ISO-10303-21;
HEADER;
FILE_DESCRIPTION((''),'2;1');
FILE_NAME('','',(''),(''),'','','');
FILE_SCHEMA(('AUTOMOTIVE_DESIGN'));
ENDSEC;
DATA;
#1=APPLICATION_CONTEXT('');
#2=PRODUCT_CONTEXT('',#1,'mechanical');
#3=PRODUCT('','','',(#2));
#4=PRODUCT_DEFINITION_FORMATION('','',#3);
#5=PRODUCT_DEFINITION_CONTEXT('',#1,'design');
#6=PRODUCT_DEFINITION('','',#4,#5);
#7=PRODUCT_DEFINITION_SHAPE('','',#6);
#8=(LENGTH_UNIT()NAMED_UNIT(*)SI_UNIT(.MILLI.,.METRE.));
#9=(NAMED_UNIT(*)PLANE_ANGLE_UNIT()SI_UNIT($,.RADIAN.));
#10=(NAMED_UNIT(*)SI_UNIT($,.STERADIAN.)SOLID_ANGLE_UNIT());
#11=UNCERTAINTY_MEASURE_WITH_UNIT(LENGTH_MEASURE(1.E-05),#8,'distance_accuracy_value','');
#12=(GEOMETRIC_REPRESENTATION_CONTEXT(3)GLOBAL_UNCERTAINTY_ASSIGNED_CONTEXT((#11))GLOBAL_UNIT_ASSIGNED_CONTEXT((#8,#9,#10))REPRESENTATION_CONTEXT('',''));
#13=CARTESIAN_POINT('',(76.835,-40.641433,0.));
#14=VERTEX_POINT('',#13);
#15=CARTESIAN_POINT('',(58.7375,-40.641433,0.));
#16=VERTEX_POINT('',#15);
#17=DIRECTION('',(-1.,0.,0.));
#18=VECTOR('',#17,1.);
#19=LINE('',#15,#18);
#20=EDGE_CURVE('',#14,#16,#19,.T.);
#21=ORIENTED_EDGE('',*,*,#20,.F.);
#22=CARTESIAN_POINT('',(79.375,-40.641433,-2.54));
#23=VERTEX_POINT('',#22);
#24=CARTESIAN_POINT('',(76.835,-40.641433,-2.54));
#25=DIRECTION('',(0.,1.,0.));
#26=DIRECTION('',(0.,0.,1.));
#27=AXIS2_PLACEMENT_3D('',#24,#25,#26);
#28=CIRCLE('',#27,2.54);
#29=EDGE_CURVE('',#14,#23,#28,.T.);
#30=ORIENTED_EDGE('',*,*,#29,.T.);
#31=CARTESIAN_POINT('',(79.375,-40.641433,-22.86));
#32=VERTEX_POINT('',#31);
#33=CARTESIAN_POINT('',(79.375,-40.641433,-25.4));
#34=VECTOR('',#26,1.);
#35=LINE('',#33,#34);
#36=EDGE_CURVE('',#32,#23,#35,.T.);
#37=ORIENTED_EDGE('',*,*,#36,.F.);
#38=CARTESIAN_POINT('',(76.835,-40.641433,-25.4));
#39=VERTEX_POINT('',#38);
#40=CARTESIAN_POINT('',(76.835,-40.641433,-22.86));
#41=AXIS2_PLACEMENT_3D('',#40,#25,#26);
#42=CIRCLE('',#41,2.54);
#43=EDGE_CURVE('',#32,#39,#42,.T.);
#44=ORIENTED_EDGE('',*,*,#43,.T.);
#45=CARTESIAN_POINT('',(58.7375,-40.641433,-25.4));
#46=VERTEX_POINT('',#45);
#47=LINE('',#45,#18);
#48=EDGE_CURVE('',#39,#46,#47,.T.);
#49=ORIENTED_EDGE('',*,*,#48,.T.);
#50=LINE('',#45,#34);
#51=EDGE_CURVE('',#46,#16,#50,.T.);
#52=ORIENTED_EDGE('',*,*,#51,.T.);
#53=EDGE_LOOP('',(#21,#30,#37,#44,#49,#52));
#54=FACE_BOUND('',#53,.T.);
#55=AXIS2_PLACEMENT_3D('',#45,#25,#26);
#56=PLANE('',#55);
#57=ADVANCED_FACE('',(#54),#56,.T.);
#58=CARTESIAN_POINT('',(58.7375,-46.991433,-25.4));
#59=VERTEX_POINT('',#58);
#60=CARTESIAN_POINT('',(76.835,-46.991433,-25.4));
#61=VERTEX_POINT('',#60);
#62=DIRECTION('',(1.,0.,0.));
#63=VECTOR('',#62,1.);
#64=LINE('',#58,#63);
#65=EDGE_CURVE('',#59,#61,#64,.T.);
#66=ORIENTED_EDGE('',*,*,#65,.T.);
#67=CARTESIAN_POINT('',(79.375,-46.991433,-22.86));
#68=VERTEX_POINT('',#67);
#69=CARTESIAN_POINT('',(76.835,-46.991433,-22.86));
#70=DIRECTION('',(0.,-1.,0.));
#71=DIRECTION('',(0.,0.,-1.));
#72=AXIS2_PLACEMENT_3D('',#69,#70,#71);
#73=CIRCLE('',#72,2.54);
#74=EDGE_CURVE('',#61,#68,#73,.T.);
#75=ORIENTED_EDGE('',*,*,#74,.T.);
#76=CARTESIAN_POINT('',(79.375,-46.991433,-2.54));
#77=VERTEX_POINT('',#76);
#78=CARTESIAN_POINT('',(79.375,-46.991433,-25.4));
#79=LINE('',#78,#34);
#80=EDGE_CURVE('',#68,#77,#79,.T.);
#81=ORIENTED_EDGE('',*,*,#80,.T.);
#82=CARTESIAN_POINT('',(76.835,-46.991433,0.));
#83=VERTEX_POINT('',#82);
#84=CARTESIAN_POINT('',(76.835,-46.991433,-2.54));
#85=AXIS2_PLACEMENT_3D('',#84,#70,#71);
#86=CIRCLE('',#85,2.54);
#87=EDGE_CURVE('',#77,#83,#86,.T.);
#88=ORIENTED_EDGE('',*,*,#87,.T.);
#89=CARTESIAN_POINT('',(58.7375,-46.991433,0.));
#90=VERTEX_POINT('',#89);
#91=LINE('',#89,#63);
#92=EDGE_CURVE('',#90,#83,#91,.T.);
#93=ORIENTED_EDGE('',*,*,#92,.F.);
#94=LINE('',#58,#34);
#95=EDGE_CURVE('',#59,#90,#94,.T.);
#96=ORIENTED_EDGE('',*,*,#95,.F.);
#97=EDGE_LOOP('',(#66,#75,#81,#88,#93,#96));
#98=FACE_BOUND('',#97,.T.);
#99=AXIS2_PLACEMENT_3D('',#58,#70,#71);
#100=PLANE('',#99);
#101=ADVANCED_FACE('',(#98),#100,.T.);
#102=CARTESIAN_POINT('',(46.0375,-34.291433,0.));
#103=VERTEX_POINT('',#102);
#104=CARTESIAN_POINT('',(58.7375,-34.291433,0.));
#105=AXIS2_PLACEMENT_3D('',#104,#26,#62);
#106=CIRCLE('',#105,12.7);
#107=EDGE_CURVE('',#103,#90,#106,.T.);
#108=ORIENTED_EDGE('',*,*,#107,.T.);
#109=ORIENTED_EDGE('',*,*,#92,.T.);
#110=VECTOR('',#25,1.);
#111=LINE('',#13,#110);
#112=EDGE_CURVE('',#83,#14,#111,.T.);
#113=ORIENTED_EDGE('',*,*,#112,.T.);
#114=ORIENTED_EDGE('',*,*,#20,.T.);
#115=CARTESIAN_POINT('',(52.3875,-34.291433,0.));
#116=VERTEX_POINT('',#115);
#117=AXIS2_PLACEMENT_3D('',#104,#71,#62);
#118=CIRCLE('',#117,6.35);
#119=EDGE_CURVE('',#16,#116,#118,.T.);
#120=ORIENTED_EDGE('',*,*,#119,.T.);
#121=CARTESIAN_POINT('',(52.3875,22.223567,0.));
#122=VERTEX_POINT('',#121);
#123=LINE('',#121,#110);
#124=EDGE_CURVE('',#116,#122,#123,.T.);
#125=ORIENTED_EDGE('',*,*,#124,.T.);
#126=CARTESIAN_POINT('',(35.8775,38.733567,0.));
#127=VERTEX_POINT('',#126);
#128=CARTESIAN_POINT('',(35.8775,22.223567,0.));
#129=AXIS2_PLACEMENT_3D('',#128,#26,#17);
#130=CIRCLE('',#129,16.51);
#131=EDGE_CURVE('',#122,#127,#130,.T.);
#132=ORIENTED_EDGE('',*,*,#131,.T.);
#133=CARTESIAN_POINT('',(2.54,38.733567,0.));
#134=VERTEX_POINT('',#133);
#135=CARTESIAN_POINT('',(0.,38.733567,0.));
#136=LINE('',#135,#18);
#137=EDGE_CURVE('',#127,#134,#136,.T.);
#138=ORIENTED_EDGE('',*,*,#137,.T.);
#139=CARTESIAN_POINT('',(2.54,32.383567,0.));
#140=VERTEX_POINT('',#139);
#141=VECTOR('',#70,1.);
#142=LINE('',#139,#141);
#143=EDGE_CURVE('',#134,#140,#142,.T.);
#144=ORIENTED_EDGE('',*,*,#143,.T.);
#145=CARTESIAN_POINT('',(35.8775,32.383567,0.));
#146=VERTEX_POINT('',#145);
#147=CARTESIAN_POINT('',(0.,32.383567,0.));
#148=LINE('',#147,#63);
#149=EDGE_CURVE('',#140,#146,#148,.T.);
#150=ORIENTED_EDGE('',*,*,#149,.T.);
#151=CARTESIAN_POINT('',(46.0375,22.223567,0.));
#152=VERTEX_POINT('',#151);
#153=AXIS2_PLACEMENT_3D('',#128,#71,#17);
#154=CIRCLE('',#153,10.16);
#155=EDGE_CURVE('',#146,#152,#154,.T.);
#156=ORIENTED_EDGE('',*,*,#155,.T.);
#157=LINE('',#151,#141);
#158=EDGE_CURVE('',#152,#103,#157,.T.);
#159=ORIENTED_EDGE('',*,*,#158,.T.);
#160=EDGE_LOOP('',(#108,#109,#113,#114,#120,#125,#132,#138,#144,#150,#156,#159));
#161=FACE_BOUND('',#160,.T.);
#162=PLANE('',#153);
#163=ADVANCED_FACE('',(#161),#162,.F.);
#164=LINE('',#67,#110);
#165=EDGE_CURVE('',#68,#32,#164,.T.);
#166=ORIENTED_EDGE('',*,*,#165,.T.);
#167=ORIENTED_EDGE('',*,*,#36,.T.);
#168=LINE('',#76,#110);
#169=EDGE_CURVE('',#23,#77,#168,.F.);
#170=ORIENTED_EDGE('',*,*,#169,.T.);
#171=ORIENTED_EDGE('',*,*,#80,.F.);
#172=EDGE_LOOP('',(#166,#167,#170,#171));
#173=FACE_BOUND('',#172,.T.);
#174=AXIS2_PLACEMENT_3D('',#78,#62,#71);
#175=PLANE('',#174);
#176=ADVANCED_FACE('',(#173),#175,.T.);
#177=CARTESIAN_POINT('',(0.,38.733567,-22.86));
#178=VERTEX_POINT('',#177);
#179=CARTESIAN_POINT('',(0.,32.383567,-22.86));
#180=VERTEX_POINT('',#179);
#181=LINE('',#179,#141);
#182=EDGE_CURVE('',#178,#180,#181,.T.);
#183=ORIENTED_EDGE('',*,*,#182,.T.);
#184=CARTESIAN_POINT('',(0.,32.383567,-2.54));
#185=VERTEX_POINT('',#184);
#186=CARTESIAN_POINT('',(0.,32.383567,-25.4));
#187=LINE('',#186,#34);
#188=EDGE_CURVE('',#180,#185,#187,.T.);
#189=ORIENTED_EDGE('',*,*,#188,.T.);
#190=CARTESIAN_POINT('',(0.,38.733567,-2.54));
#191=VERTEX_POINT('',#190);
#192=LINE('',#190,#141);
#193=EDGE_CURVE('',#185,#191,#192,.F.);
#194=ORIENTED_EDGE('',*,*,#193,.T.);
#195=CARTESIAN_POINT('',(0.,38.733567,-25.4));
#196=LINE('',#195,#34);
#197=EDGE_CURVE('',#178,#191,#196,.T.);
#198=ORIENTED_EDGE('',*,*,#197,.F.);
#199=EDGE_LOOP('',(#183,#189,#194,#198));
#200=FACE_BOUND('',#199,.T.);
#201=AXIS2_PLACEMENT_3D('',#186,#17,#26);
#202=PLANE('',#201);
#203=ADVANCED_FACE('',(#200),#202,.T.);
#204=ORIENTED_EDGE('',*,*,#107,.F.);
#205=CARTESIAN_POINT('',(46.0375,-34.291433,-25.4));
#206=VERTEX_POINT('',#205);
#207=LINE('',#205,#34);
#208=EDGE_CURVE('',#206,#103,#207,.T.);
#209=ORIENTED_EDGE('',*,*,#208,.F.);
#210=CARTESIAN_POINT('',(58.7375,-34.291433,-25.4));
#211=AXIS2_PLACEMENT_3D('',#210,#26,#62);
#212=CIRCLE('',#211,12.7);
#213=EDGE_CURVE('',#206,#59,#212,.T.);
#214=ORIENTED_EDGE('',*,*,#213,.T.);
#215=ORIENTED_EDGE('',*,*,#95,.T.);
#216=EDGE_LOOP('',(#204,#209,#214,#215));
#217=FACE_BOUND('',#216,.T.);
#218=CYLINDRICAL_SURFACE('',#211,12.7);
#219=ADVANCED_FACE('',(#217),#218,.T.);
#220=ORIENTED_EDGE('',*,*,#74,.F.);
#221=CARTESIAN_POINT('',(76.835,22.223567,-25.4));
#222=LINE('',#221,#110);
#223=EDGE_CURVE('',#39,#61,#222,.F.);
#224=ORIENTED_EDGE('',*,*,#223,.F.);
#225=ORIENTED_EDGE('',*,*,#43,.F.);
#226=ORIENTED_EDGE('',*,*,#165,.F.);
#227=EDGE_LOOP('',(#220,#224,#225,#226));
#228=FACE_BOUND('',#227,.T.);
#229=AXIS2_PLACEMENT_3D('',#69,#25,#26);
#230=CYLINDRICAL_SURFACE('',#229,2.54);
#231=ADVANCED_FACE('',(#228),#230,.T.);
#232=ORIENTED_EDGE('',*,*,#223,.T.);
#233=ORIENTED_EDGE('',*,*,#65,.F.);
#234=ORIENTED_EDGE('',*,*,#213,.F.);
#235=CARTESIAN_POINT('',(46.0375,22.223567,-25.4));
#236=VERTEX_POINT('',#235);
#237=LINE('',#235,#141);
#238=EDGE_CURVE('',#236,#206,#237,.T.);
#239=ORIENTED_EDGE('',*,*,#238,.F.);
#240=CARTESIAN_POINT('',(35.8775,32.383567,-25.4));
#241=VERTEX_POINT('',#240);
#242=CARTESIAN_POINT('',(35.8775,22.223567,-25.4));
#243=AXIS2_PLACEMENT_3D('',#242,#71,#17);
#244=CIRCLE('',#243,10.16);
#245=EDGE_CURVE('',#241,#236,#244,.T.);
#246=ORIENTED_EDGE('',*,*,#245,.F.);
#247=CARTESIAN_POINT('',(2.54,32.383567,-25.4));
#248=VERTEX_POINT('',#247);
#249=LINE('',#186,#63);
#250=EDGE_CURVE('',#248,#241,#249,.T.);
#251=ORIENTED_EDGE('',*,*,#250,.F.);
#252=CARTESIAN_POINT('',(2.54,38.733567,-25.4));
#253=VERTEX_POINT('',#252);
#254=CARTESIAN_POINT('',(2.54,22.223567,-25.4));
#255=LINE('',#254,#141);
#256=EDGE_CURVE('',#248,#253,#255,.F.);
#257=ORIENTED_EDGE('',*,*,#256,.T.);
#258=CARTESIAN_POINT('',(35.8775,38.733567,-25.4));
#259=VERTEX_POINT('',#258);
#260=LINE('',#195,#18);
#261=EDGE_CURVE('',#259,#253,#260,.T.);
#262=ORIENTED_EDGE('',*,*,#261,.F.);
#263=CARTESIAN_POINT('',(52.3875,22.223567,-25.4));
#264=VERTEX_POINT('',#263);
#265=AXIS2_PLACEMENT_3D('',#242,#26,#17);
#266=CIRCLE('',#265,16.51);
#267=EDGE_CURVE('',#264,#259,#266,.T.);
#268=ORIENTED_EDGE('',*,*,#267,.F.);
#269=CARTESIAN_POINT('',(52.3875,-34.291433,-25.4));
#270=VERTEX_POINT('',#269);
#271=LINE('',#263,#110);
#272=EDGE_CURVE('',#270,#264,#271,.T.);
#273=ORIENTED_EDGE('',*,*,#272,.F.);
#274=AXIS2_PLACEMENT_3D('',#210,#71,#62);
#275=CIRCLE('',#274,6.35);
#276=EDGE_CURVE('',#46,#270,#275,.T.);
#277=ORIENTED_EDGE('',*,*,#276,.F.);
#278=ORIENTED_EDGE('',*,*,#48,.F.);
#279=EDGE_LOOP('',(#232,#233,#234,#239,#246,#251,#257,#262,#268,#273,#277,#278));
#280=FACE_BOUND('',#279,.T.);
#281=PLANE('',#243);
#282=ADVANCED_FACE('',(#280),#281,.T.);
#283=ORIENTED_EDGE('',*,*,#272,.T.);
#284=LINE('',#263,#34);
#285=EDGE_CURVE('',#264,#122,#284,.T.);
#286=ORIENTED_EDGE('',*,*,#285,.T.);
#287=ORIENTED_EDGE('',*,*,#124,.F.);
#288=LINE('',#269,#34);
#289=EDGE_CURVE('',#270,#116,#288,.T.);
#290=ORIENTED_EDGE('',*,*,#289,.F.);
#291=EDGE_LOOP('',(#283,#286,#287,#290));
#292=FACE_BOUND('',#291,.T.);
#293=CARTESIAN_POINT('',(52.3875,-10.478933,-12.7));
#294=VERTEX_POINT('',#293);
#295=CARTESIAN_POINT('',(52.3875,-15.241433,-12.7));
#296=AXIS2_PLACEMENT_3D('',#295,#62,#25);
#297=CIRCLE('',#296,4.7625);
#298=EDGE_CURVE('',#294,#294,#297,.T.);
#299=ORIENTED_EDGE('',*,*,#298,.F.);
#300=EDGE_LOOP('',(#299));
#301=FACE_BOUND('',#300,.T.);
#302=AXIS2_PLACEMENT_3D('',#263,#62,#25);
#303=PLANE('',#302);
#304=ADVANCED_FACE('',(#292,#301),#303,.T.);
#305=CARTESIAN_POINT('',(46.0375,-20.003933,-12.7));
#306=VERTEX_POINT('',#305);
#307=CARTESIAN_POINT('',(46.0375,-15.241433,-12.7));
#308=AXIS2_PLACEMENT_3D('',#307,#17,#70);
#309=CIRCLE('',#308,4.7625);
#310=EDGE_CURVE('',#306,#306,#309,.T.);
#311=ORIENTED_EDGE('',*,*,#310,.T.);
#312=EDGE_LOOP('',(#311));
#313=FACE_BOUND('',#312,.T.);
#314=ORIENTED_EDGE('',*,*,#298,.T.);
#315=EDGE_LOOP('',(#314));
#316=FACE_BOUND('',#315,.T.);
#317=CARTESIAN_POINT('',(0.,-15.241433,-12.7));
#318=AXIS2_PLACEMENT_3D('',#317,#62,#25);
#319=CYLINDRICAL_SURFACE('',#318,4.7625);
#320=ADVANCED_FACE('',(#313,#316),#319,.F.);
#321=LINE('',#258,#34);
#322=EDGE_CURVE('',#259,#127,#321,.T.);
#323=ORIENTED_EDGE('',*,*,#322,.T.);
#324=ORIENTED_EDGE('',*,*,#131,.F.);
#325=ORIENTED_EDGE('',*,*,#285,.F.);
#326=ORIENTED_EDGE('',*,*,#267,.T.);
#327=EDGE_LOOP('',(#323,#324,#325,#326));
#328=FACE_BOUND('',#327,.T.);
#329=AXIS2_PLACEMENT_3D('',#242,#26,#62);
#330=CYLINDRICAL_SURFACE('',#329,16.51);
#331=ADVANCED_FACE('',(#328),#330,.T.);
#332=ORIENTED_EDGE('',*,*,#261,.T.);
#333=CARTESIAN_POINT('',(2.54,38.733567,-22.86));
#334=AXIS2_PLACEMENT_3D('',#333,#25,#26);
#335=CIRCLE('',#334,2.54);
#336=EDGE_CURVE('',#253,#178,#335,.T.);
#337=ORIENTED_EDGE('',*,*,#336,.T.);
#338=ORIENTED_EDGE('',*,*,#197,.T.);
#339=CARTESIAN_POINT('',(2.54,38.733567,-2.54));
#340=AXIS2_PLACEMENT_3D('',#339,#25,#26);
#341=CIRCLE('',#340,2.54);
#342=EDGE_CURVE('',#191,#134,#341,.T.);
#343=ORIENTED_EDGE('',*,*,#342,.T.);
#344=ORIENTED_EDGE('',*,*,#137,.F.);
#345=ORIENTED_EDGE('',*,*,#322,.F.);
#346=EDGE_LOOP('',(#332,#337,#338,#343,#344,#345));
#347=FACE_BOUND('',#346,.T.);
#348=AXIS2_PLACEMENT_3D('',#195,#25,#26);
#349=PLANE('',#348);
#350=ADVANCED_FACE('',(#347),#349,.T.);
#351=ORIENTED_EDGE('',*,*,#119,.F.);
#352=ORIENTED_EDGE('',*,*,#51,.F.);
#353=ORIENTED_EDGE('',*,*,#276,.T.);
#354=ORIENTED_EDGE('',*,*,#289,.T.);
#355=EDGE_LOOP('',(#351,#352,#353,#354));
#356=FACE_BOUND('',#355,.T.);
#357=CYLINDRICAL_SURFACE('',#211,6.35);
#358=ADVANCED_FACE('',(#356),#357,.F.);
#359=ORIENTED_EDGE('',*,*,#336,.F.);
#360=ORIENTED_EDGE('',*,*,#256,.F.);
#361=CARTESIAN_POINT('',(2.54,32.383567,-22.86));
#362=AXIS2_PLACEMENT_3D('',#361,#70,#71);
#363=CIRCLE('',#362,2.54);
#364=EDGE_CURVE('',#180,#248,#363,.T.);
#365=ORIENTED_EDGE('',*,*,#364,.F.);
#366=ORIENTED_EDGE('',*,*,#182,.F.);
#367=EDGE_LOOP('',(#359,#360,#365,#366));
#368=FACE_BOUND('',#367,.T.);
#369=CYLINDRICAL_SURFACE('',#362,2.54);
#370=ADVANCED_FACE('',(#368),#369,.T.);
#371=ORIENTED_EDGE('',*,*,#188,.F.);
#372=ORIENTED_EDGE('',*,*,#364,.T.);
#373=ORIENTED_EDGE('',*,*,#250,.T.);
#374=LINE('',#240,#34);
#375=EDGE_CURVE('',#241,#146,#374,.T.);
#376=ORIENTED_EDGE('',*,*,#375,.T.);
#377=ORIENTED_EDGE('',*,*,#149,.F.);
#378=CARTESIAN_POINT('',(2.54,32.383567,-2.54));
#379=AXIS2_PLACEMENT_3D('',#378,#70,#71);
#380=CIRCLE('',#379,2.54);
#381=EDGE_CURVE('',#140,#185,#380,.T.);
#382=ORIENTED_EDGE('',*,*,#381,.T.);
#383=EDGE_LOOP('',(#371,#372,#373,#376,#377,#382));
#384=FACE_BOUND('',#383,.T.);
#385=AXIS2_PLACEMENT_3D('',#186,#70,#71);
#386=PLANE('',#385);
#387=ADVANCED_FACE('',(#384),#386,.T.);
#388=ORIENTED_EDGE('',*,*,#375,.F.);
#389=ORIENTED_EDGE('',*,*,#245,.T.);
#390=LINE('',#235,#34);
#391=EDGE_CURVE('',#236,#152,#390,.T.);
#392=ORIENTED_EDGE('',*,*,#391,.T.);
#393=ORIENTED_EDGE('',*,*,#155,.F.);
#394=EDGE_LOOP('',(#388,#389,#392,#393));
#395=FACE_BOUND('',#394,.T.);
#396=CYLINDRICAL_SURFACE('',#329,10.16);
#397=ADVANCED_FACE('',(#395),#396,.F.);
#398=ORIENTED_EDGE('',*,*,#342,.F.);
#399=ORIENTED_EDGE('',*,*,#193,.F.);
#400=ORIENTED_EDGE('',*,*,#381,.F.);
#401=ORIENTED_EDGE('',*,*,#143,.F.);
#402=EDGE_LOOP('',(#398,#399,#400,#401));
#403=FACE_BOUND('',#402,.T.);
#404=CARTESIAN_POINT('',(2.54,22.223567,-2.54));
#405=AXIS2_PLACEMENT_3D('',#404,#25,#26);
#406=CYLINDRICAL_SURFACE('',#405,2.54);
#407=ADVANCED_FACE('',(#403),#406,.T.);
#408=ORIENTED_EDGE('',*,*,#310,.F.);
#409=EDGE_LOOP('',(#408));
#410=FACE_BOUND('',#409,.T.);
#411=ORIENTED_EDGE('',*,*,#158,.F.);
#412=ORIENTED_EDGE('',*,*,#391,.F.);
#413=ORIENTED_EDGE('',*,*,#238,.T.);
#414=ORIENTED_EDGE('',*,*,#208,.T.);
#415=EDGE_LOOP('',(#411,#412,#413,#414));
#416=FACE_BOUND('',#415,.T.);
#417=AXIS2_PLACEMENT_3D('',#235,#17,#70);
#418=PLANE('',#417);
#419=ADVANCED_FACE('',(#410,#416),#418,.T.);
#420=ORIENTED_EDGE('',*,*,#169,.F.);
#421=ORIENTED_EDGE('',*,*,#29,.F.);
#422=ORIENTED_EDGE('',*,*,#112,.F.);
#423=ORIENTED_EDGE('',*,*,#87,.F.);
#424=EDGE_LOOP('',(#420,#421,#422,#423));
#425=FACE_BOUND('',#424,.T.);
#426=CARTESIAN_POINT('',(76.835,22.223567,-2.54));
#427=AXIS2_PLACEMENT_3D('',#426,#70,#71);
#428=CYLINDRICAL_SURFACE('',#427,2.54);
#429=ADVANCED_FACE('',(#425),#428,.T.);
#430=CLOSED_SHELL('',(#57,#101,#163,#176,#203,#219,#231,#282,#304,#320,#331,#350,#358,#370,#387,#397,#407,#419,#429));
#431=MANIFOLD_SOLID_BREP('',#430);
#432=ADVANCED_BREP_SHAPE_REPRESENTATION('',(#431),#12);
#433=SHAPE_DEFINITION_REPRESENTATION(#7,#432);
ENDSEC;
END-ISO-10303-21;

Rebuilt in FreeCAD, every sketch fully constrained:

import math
import FreeCAD as App
import Part
import Sketcher
Q = App.Units.Quantity


def edges_at(feature, points):
    """Names of the edges that pass closest to the given points."""
    edges = feature.Shape.Edges
    near = lambda p: min(range(len(edges)), key=lambda i: edges[i].distToShape(Part.Vertex(*p))[0])
    return sorted({f"Edge{near(p) + 1}" for p in points})

doc = App.newDocument("Part")
body = doc.addObject("PartDesign::Body", "Body")

sketch1 = body.newObject("Sketcher::SketchObject", "Sketch")
sketch1.AttachmentSupport = (doc.getObject("XY_Plane"), [""])
sketch1.MapMode = "FlatFace"
sketch1.addGeometry([
    Part.LineSegment(App.Vector(0, 32, 0), App.Vector(36, 32, 0)),
    Part.ArcOfCircle(Part.Circle(App.Vector(36, 22, 0), App.Vector(0, 0, 1), 10), math.radians(0), math.radians(90)),
    Part.LineSegment(App.Vector(46, 22, 0), App.Vector(46, -34, 0)),
    Part.ArcOfCircle(Part.Circle(App.Vector(59, -34, 0), App.Vector(0, 0, 1), 13), math.radians(180), math.radians(270)),
    Part.LineSegment(App.Vector(59, -47, 0), App.Vector(79, -47, 0)),
    Part.LineSegment(App.Vector(79, -47, 0), App.Vector(79, -41, 0)),
    Part.LineSegment(App.Vector(79, -41, 0), App.Vector(59, -41, 0)),
    Part.ArcOfCircle(Part.Circle(App.Vector(59, -34, 0), App.Vector(0, 0, 1), 6), math.radians(180), math.radians(270)),
    Part.LineSegment(App.Vector(52, -34, 0), App.Vector(52, 22, 0)),
    Part.ArcOfCircle(Part.Circle(App.Vector(36, 22, 0), App.Vector(0, 0, 1), 17), math.radians(0), math.radians(90)),
    Part.LineSegment(App.Vector(36, 39, 0), App.Vector(0, 39, 0)),
    Part.LineSegment(App.Vector(0, 39, 0), App.Vector(0, 32, 0)),
], False)
sketch1.addConstraint([
    Sketcher.Constraint("Tangent", 0, 2, 1, 2),
    Sketcher.Constraint("Tangent", 1, 1, 2, 1),
    Sketcher.Constraint("Tangent", 2, 2, 3, 1),
    Sketcher.Constraint("Tangent", 3, 2, 4, 1),
    Sketcher.Constraint("Coincident", 4, 2, 5, 1),
    Sketcher.Constraint("Coincident", 5, 2, 6, 1),
    Sketcher.Constraint("Tangent", 6, 2, 7, 2),
    Sketcher.Constraint("Tangent", 7, 1, 8, 1),
    Sketcher.Constraint("Tangent", 8, 2, 9, 1),
    Sketcher.Constraint("Tangent", 9, 2, 10, 1),
    Sketcher.Constraint("Coincident", 10, 2, 11, 1),
    Sketcher.Constraint("Coincident", 11, 2, 0, 1),
    Sketcher.Constraint("Horizontal", 0),
    Sketcher.Constraint("Vertical", 2),
    Sketcher.Constraint("Horizontal", 4),
    Sketcher.Constraint("Vertical", 5),
    Sketcher.Constraint("Horizontal", 6),
    Sketcher.Constraint("Vertical", 8),
    Sketcher.Constraint("Horizontal", 10),
    Sketcher.Constraint("Vertical", 11),
    Sketcher.Constraint("Coincident", 7, 3, 3, 3),
    Sketcher.Constraint("Coincident", 9, 3, 1, 3),
    Sketcher.Constraint("PointOnObject", 10, 2, -2),
    Sketcher.Constraint("Radius", 1, Q("0.4 in")),
    Sketcher.Constraint("Radius", 3, Q("0.5 in")),
    Sketcher.Constraint("Radius", 7, Q("0.25 in")),
    Sketcher.Constraint("DistanceX", 4, 1, 4, 2, Q("0.8125 in")),
    Sketcher.Constraint("DistanceY", 2, 2, 2, 1, Q("2.225 in")),
    Sketcher.Constraint("DistanceX", 0, 1, 0, 2, Q("1.4125 in")),
    Sketcher.Constraint("DistanceY", -1, 1, 1, 3, Q("22.223567 mm")),
])
pad1 = body.newObject("PartDesign::Pad", "Pad")
pad1.Profile = sketch1
pad1.Length = Q("1 in")
pad1.Reversed = True
doc.recompute()

fillet = body.newObject("PartDesign::Fillet", "Fillet")
fillet.Base = (pad1, edges_at(pad1, [
    (79.375, -43.816, 0),
    (0, 35.559, 0),
    (79.375, -43.816, -25.4),
    (0, 35.559, -25.4),
]))
fillet.Radius = Q("0.1 in")

sketch2 = body.newObject("Sketcher::SketchObject", "Sketch001")
sketch2.AttachmentSupport = (doc.getObject("YZ_Plane"), [""])
sketch2.MapMode = "FlatFace"
sketch2.AttachmentOffset = App.Placement(App.Vector(0, 0, 2.0625 * 25.4), App.Rotation())
sketch2.addGeometry(Part.Circle(App.Vector(-15.2, -12.7, 0), App.Vector(0, 0, 1), 4.8), False)
sketch2.addConstraint([
    Sketcher.Constraint("Diameter", 0, Q("0.375 in")),
    Sketcher.Constraint("DistanceY", 0, 3, -1, 1, Q("0.5 in")),
    Sketcher.Constraint("DistanceX", 0, 3, -1, 1, Q("15.241433 mm")),
])
pocket1 = body.newObject("PartDesign::Pocket", "Pocket")
pocket1.Profile = sketch2
pocket1.Type = "ThroughAll"

doc.recompute()
